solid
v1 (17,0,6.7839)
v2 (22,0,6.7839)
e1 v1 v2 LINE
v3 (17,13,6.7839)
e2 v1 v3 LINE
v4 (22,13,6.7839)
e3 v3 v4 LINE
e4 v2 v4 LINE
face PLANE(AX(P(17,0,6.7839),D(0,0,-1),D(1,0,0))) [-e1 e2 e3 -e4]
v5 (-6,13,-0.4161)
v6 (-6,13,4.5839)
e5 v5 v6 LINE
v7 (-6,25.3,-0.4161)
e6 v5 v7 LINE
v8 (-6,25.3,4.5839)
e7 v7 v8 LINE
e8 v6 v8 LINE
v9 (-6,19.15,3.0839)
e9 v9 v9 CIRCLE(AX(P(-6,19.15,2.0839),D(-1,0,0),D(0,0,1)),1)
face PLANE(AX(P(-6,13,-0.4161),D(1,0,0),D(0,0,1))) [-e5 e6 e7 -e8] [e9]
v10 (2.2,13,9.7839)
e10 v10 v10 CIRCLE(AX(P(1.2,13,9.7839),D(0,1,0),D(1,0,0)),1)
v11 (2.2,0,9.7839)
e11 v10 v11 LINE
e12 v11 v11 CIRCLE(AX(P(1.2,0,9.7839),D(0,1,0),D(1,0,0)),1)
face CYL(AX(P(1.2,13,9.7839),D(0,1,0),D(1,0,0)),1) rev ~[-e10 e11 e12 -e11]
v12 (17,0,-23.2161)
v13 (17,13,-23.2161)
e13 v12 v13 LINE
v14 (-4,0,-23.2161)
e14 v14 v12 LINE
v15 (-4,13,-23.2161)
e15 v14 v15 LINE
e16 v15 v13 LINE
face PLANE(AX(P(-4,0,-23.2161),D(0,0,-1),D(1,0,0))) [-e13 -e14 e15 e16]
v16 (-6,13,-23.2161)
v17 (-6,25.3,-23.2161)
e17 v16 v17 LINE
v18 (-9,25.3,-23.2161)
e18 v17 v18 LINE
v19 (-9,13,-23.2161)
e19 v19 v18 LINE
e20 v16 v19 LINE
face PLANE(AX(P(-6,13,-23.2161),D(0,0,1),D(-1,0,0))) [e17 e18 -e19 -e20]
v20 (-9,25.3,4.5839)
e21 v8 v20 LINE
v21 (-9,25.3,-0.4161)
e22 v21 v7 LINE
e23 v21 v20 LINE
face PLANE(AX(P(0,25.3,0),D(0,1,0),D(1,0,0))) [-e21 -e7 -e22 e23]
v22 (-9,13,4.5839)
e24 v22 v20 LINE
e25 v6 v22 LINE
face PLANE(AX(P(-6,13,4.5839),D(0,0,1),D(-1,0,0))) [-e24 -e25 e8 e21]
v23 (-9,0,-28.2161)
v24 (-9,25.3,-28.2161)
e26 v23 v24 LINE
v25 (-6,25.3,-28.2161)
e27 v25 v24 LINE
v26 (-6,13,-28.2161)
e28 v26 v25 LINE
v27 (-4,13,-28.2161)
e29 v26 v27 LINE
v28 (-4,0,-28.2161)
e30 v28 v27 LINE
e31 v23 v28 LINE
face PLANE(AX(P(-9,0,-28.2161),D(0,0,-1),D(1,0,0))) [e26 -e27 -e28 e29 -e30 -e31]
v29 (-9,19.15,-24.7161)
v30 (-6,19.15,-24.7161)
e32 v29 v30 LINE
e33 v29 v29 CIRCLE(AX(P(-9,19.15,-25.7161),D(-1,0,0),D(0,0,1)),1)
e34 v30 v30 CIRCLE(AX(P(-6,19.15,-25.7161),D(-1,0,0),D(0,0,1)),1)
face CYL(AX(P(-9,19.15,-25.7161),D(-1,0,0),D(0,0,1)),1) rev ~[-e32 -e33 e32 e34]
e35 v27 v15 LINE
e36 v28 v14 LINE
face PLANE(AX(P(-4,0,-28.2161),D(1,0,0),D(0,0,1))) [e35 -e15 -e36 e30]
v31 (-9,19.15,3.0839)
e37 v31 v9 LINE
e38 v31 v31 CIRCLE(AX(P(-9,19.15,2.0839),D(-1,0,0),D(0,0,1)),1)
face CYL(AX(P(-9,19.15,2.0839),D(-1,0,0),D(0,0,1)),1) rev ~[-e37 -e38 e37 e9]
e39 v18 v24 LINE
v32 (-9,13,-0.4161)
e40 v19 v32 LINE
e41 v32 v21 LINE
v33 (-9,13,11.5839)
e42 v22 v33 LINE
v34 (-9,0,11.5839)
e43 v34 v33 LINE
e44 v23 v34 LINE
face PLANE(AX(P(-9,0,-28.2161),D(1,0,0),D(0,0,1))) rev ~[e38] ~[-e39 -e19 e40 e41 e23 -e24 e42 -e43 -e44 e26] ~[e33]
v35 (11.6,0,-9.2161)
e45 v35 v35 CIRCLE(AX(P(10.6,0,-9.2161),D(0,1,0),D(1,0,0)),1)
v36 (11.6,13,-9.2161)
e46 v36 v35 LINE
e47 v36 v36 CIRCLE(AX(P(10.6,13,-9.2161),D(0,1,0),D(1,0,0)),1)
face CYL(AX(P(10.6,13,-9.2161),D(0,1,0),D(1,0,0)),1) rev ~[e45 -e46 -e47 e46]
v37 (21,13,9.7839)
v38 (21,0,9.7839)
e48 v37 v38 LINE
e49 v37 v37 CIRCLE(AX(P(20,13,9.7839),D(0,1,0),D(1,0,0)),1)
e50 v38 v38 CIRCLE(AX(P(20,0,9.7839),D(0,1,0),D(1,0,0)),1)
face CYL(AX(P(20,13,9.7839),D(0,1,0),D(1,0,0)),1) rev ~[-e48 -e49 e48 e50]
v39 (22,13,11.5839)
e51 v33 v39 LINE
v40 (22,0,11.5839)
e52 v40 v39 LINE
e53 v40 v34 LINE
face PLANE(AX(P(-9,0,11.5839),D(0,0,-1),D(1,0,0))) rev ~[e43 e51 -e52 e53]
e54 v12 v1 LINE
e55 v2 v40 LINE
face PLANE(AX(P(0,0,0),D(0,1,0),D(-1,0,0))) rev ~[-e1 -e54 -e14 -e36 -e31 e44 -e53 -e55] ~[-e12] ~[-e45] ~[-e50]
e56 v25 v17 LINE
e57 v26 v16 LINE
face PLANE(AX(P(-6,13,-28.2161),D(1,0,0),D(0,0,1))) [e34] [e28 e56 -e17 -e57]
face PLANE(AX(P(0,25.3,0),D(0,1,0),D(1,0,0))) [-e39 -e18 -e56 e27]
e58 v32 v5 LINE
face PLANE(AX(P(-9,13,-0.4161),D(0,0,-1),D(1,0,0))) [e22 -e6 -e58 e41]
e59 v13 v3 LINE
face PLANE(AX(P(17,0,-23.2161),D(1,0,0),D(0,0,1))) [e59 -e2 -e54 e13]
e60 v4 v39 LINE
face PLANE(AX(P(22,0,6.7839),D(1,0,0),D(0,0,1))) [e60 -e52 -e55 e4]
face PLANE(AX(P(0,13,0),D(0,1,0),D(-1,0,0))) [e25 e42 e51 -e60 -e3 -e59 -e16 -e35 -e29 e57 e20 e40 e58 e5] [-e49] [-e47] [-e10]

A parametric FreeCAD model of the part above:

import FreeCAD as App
import Part
import Sketcher

V = App.Vector
Q = App.Units.Quantity

doc = App.newDocument("Part")
body = doc.addObject("PartDesign::Body", "Body")

# Sketch on XZ plane
sketch1 = body.newObject("Sketcher::SketchObject", "Sketch")
sketch1.AttachmentSupport = (doc.getObject("XZ_Plane"), [""])
sketch1.MapMode = "FlatFace"
sketch1.addGeometry([
    Part.LineSegment(V(-4, -28.2161, 0), V(-9, -28.2161, 0)),  # 0
    Part.LineSegment(V(-9, -28.2161, 0), V(-9, 11.5839, 0)),  # 1
    Part.LineSegment(V(-9, 11.5839, 0), V(22, 11.5839, 0)),  # 2
    Part.LineSegment(V(22, 11.5839, 0), V(22, 6.7839, 0)),  # 3
    Part.LineSegment(V(22, 6.7839, 0), V(17, 6.7839, 0)),  # 4
    Part.LineSegment(V(17, 6.7839, 0), V(17, -23.2161, 0)),  # 5
    Part.LineSegment(V(17, -23.2161, 0), V(-4, -23.2161, 0)),  # 6
    Part.LineSegment(V(-4, -23.2161, 0), V(-4, -28.2161, 0)),  # 7
], False)
sketch1.addConstraint([
    Sketcher.Constraint("Coincident", 0, 2, 1, 1),
    Sketcher.Constraint("Coincident", 1, 2, 2, 1),
    Sketcher.Constraint("Coincident", 2, 2, 3, 1),
    Sketcher.Constraint("Coincident", 3, 2, 4, 1),
    Sketcher.Constraint("Coincident", 4, 2, 5, 1),
    Sketcher.Constraint("Coincident", 5, 2, 6, 1),
    Sketcher.Constraint("Coincident", 6, 2, 7, 1),
    Sketcher.Constraint("Coincident", 7, 2, 0, 1),
    Sketcher.Constraint("Horizontal", 0),
    Sketcher.Constraint("Vertical", 1),
    Sketcher.Constraint("Horizontal", 2),
    Sketcher.Constraint("Vertical", 3),
    Sketcher.Constraint("Horizontal", 4),
    Sketcher.Constraint("Vertical", 5),
    Sketcher.Constraint("Horizontal", 6),
    Sketcher.Constraint("Vertical", 7),
    Sketcher.Constraint("Equal", 0, 4),
    Sketcher.Constraint("Equal", 4, 7),
    Sketcher.Constraint("DistanceX", 0, 2, 0, 1, Q("5 mm")),
    Sketcher.Constraint("DistanceX", 6, 2, 6, 1, Q("21 mm")),
    Sketcher.Constraint("DistanceY", 5, 2, 5, 1, Q("30 mm")),
    Sketcher.Constraint("DistanceY", 1, 1, 1, 2, Q("39.8 mm")),
    Sketcher.Constraint("DistanceX", 0, 2, -1, 1, Q("9 mm")),
    Sketcher.Constraint("DistanceY", 0, 2, -1, 1, Q("28.216 mm")),
])
pad1 = body.newObject("PartDesign::Pad", "Pad")
pad1.Profile = sketch1
pad1.Length = 13
pad1.Reversed = True

# Sketch on XZ plane
sketch2 = body.newObject("Sketcher::SketchObject", "Sketch001")
sketch2.AttachmentSupport = (doc.getObject("XZ_Plane"), [""])
sketch2.MapMode = "FlatFace"
sketch2.AttachmentOffset = App.Placement(V(0, 0, -13), App.Rotation())
sketch2.addGeometry([
    Part.Circle(V(1.2, 9.7839, 0), V(0, 0, 1), 1),
    Part.Circle(V(20, 9.7839, 0), V(0, 0, 1), 1),
    Part.Circle(V(10.6, -9.2161, 0), V(0, 0, 1), 1),
], False)
sketch2.addConstraint([
    Sketcher.Constraint("Equal", 0, 1),
    Sketcher.Constraint("Equal", 1, 2),
    Sketcher.Constraint("Horizontal", 0, 3, 1, 3),
    Sketcher.Constraint("Diameter", 0, Q("2 mm")),
    Sketcher.Constraint("DistanceY", 2, 3, 0, 3, Q("19 mm")),
    Sketcher.Constraint("DistanceX", 0, 3, 2, 3, Q("9.4 mm")),
    Sketcher.Constraint("DistanceX", 2, 3, 1, 3, Q("9.4 mm")),
    Sketcher.Constraint("DistanceX", -1, 1, 1, 3, Q("20 mm")),
    Sketcher.Constraint("DistanceY", -1, 1, 0, 3, Q("9.784 mm")),
])
pocket1 = body.newObject("PartDesign::Pocket", "Pocket")
pocket1.Profile = sketch2
pocket1.Length = 15
pocket1.Reversed = True

# Sketch on XZ plane
sketch3 = body.newObject("Sketcher::SketchObject", "Sketch002")
sketch3.AttachmentSupport = (doc.getObject("XZ_Plane"), [""])
sketch3.MapMode = "FlatFace"
sketch3.AttachmentOffset = App.Placement(V(0, 0, -13), App.Rotation())
sketch3.addGeometry([
    Part.LineSegment(V(-6, -23.2161, 0), V(-6, -28.2161, 0)),  # 0
    Part.LineSegment(V(-6, -28.2161, 0), V(-9, -28.2161, 0)),  # 1
    Part.LineSegment(V(-9, -28.2161, 0), V(-9, -23.2161, 0)),  # 2
    Part.LineSegment(V(-9, -23.2161, 0), V(-6, -23.2161, 0)),  # 3
    Part.LineSegment(V(-6, -0.4161, 0), V(-9, -0.4161, 0)),  # 4
    Part.LineSegment(V(-9, -0.4161, 0), V(-9, 4.5839, 0)),  # 5
    Part.LineSegment(V(-9, 4.5839, 0), V(-6, 4.5839, 0)),  # 6
    Part.LineSegment(V(-6, 4.5839, 0), V(-6, -0.4161, 0)),  # 7
], False)
sketch3.addConstraint([
    Sketcher.Constraint("Coincident", 0, 2, 1, 1),
    Sketcher.Constraint("Coincident", 1, 2, 2, 1),
    Sketcher.Constraint("Coincident", 2, 2, 3, 1),
    Sketcher.Constraint("Coincident", 3, 2, 0, 1),
    Sketcher.Constraint("Coincident", 4, 2, 5, 1),
    Sketcher.Constraint("Coincident", 5, 2, 6, 1),
    Sketcher.Constraint("Coincident", 6, 2, 7, 1),
    Sketcher.Constraint("Coincident", 7, 2, 4, 1),
    Sketcher.Constraint("Vertical", 0),
    Sketcher.Constraint("Horizontal", 1),
    Sketcher.Constraint("Vertical", 2),
    Sketcher.Constraint("Horizontal", 3),
    Sketcher.Constraint("Horizontal", 4),
    Sketcher.Constraint("Vertical", 5),
    Sketcher.Constraint("Horizontal", 6),
    Sketcher.Constraint("Vertical", 7),
    Sketcher.Constraint("Vertical", 2, 2, 4, 2),
    Sketcher.Constraint("Vertical", 3, 2, 6, 2),
    Sketcher.Constraint("Equal", 2, 5),
    Sketcher.Constraint("DistanceX", 1, 2, 1, 1, Q("3 mm")),
    Sketcher.Constraint("DistanceY", 0, 2, 0, 1, Q("5 mm")),
    Sketcher.Constraint("DistanceY", 2, 2, 4, 2, Q("22.8 mm")),
    Sketcher.Constraint("DistanceX", 0, 2, -1, 1, Q("6 mm")),
    Sketcher.Constraint("DistanceY", 0, 2, -1, 1, Q("28.216 mm")),
])
pad2 = body.newObject("PartDesign::Pad", "Pad001")
pad2.Profile = sketch3
pad2.Length = 12.3
pad2.Reversed = True

# Sketch on YZ plane
sketch4 = body.newObject("Sketcher::SketchObject", "Sketch003")
sketch4.AttachmentSupport = (doc.getObject("YZ_Plane"), [""])
sketch4.MapMode = "FlatFace"
sketch4.AttachmentOffset = App.Placement(V(0, 0, -9), App.Rotation())
sketch4.addGeometry([
    Part.Circle(V(19.15, 2.0839, 0), V(0, 0, 1), 1),
    Part.Circle(V(19.15, -25.7161, 0), V(0, 0, 1), 1),
], False)
sketch4.addConstraint([
    Sketcher.Constraint("Equal", 0, 1),
    Sketcher.Constraint("Vertical", 0, 3, 1, 3),
    Sketcher.Constraint("Diameter", 0, Q("2 mm")),
    Sketcher.Constraint("DistanceY", 1, 3, 0, 3, Q("27.8 mm")),
    Sketcher.Constraint("DistanceX", -1, 1, 0, 3, Q("19.15 mm")),
    Sketcher.Constraint("DistanceY", -1, 1, 0, 3, Q("2.084 mm")),
])
pocket2 = body.newObject("PartDesign::Pocket", "Pocket001")
pocket2.Profile = sketch4
pocket2.Length = 12.3
pocket2.Reversed = True

doc.recompute()
